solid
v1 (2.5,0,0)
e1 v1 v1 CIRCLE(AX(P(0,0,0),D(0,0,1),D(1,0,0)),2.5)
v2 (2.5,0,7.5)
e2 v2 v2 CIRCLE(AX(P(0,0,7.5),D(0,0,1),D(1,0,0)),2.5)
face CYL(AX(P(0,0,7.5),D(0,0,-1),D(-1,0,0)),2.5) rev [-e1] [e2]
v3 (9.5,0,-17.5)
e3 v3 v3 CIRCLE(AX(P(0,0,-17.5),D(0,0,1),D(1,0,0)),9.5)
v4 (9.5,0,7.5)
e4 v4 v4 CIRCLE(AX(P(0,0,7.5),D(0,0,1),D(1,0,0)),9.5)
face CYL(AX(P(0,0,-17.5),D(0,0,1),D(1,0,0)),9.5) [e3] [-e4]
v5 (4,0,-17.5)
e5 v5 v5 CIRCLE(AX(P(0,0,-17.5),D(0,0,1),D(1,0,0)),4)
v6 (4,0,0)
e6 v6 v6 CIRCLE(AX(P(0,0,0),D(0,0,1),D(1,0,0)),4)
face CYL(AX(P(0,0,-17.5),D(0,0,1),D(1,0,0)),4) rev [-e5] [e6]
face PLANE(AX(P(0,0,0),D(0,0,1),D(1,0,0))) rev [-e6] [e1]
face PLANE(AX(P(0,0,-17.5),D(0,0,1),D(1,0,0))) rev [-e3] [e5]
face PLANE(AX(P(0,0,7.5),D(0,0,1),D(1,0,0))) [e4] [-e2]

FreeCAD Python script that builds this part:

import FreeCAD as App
import Part
import Sketcher
Q = App.Units.Quantity

doc = App.newDocument("Part")
params = doc.addObject("Spreadsheet::Sheet", "Params")
for row, (alias, value) in enumerate([
    ("sketch1_diameter", "19 mm"),
    ("sketch1_diameter2", "8 mm"),
    ("pad1_length", "17.5 mm"),
    ("sketch2_diameter", "19 mm"),
    ("sketch2_diameter2", "5 mm"),
    ("pad2_length", "7.5 mm"),
], start=1):
    params.set(f"A{row}", alias)
    params.set(f"B{row}", "=" + value)
    params.setAlias(f"B{row}", alias)

body = doc.addObject("PartDesign::Body", "Body")

# Sketch on XY plane
sketch1 = body.newObject("Sketcher::SketchObject", "Sketch")
sketch1.AttachmentSupport = (doc.getObject("XY_Plane"), [""])
sketch1.MapMode = "FlatFace"
sketch1.addGeometry([
    Part.Circle(App.Vector(0, 0, 0), App.Vector(0, 0, 1), 9.5),
    Part.Circle(App.Vector(0, 0, 0), App.Vector(0, 0, 1), 4),
], False)
sketch1.addConstraint([
    Sketcher.Constraint("Coincident", 0, 3, -1, 1),
    Sketcher.Constraint("Coincident", 1, 3, -1, 1),
    Sketcher.Constraint("Diameter", 0, Q("19 mm")),
    Sketcher.Constraint("Diameter", 1, Q("8 mm")),
])
sketch1.setExpression("Constraints[2]", "Params.sketch1_diameter")
sketch1.setExpression("Constraints[3]", "Params.sketch1_diameter2")
pad1 = body.newObject("PartDesign::Pad", "Pad")
pad1.Profile = sketch1
pad1.setExpression("Length", "Params.pad1_length")
pad1.Reversed = True

# Sketch on XY plane
sketch2 = body.newObject("Sketcher::SketchObject", "Sketch001")
sketch2.AttachmentSupport = (doc.getObject("XY_Plane"), [""])
sketch2.MapMode = "FlatFace"
sketch2.AttachmentOffset = App.Placement(App.Vector(0, 0, 7.5), App.Rotation())
sketch2.addGeometry([
    Part.Circle(App.Vector(0, 0, 0), App.Vector(0, 0, 1), 9.5),
    Part.Circle(App.Vector(0, 0, 0), App.Vector(0, 0, 1), 2.5),
], False)
sketch2.addConstraint([
    Sketcher.Constraint("Coincident", 0, 3, -1, 1),
    Sketcher.Constraint("Coincident", 1, 3, -1, 1),
    Sketcher.Constraint("Diameter", 0, Q("19 mm")),
    Sketcher.Constraint("Diameter", 1, Q("5 mm")),
])
sketch2.setExpression("Constraints[2]", "Params.sketch2_diameter")
sketch2.setExpression("Constraints[3]", "Params.sketch2_diameter2")
pad2 = body.newObject("PartDesign::Pad", "Pad001")
pad2.Profile = sketch2
pad2.setExpression("Length", "Params.pad2_length")
pad2.Reversed = True

doc.recompute()
